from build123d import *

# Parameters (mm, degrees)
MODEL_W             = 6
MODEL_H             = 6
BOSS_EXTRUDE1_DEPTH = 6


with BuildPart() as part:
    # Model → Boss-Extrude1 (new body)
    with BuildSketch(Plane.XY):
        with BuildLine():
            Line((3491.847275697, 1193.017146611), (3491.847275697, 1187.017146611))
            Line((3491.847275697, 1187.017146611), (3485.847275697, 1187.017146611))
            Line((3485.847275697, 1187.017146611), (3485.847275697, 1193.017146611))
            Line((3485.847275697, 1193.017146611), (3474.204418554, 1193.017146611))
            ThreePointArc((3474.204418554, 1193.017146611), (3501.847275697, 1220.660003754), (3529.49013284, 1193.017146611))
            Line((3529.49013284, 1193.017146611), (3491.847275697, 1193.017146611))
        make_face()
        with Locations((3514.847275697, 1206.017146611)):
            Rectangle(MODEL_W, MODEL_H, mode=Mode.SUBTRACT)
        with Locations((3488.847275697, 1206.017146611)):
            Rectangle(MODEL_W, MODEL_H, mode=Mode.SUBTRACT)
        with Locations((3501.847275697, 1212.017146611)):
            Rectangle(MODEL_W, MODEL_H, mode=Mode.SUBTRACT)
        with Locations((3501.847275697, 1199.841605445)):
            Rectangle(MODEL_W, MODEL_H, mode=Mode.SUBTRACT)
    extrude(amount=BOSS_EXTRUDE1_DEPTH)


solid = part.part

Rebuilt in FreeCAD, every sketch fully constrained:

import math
import FreeCAD as App
import Part
import Sketcher
Q = App.Units.Quantity


def add_polygon(sketch, points):
    """Adds a closed chain of lines whose ends are joined by coincident constraints."""
    first, n = sketch.GeometryCount, len(points)
    for a, b in zip(points, points[1:] + points[:1]):
        sketch.addGeometry(Part.LineSegment(App.Vector(*a, 0), App.Vector(*b, 0)), False)
    for i in range(n):
        sketch.addConstraint(Sketcher.Constraint("Coincident", first + i, 2, first + (i + 1) % n, 1))

doc = App.newDocument("Part")
body = doc.addObject("PartDesign::Body", "Body")

# Sketch on XY plane
sketch1 = body.newObject("Sketcher::SketchObject", "Sketch")
sketch1.AttachmentSupport = (doc.getObject("XY_Plane"), [""])
sketch1.MapMode = "FlatFace"
sketch1.addGeometry(Part.LineSegment(App.Vector(3492, 1187, 0), App.Vector(3492, 1193, 0)), False)  # 0
sketch1.addGeometry(Part.LineSegment(App.Vector(3492, 1193, 0), App.Vector(3529, 1193, 0)), False)  # 1
sketch1.addGeometry(Part.ArcOfCircle(Part.Circle(App.Vector(3502, 1193, 0), App.Vector(0, 0, 1), 28), math.radians(0), math.radians(180)), False)  # 2
sketch1.addGeometry(Part.LineSegment(App.Vector(3474, 1193, 0), App.Vector(3486, 1193, 0)), False)  # 3
sketch1.addGeometry(Part.LineSegment(App.Vector(3486, 1193, 0), App.Vector(3486, 1187, 0)), False)  # 4
sketch1.addGeometry(Part.LineSegment(App.Vector(3486, 1187, 0), App.Vector(3492, 1187, 0)), False)  # 5
add_polygon(sketch1, [(3499, 1197), (3499, 1203), (3505, 1203), (3505, 1197)])  # lines 6-9
add_polygon(sketch1, [(3512, 1203), (3512, 1209), (3518, 1209), (3518, 1203)])  # lines 10-13
add_polygon(sketch1, [(3486, 1203), (3486, 1209), (3492, 1209), (3492, 1203)])  # lines 14-17
add_polygon(sketch1, [(3499, 1209), (3499, 1215), (3505, 1215), (3505, 1209)])  # lines 18-21
sketch1.addConstraint([
    Sketcher.Constraint("Coincident", 0, 2, 1, 1),
    Sketcher.Constraint("Coincident", 1, 2, 2, 1),
    Sketcher.Constraint("Coincident", 2, 2, 3, 1),
    Sketcher.Constraint("Coincident", 3, 2, 4, 1),
    Sketcher.Constraint("Coincident", 4, 2, 5, 1),
    Sketcher.Constraint("Coincident", 5, 2, 0, 1),
    Sketcher.Constraint("Vertical", 0),
    Sketcher.Constraint("Horizontal", 1),
    Sketcher.Constraint("Horizontal", 3),
    Sketcher.Constraint("Vertical", 4),
    Sketcher.Constraint("Horizontal", 5),
    Sketcher.Constraint("Vertical", 6),
    Sketcher.Constraint("Horizontal", 7),
    Sketcher.Constraint("Vertical", 8),
    Sketcher.Constraint("Horizontal", 9),
    Sketcher.Constraint("Vertical", 10),
    Sketcher.Constraint("Horizontal", 11),
    Sketcher.Constraint("Vertical", 12),
    Sketcher.Constraint("Horizontal", 13),
    Sketcher.Constraint("Vertical", 14),
    Sketcher.Constraint("Horizontal", 15),
    Sketcher.Constraint("Vertical", 16),
    Sketcher.Constraint("Horizontal", 17),
    Sketcher.Constraint("Vertical", 18),
    Sketcher.Constraint("Horizontal", 19),
    Sketcher.Constraint("Vertical", 20),
    Sketcher.Constraint("Horizontal", 21),
    Sketcher.Constraint("Horizontal", 2, 3, 0, 2),
    Sketcher.Constraint("Horizontal", 1, 2, 2, 2),
    Sketcher.Constraint("Horizontal", 11, 2, 14, 2),
    Sketcher.Constraint("Horizontal", 13, 2, 16, 2),
    Sketcher.Constraint("Horizontal", 15, 2, 20, 2),
    Sketcher.Constraint("Vertical", 4, 2, 14, 2),
    Sketcher.Constraint("Vertical", 5, 2, 15, 2),
    Sketcher.Constraint("Vertical", 9, 2, 18, 2),
    Sketcher.Constraint("Vertical", 8, 2, 19, 2),
    Sketcher.Constraint("Equal", 5, 7),
    Sketcher.Constraint("Equal", 9, 11),
    Sketcher.Constraint("Equal", 21, 0),
    Sketcher.Constraint("Equal", 4, 6),
    Sketcher.Constraint("Equal", 8, 10),
    Sketcher.Constraint("Equal", 16, 18),
    Sketcher.Constraint("DistanceX", 5, 1, 5, 2, Q("6 mm")),
    Sketcher.Constraint("DistanceX", 0, 2, 2, 3, Q("10 mm")),
    Sketcher.Constraint("DistanceX", 6, 2, 2, 3, Q("3 mm")),
    Sketcher.Constraint("DistanceX", 7, 2, 10, 2, Q("7 mm")),
    Sketcher.Constraint("DistanceY", 2, 3, 10, 2, Q("16 mm")),
    Sketcher.Constraint("Radius", 2, Q("27.642857 mm")),
    Sketcher.Constraint("DistanceX", -1, 1, 2, 2, Q("3474.204419 mm")),
    Sketcher.Constraint("DistanceY", 2, 3, 6, 2, Q("9.824459 mm")),
    Sketcher.Constraint("DistanceY", -1, 1, 2, 3, Q("1193.017147 mm")),
])
pad1 = body.newObject("PartDesign::Pad", "Pad")
pad1.Profile = sketch1
pad1.Length = 6

doc.recompute()
